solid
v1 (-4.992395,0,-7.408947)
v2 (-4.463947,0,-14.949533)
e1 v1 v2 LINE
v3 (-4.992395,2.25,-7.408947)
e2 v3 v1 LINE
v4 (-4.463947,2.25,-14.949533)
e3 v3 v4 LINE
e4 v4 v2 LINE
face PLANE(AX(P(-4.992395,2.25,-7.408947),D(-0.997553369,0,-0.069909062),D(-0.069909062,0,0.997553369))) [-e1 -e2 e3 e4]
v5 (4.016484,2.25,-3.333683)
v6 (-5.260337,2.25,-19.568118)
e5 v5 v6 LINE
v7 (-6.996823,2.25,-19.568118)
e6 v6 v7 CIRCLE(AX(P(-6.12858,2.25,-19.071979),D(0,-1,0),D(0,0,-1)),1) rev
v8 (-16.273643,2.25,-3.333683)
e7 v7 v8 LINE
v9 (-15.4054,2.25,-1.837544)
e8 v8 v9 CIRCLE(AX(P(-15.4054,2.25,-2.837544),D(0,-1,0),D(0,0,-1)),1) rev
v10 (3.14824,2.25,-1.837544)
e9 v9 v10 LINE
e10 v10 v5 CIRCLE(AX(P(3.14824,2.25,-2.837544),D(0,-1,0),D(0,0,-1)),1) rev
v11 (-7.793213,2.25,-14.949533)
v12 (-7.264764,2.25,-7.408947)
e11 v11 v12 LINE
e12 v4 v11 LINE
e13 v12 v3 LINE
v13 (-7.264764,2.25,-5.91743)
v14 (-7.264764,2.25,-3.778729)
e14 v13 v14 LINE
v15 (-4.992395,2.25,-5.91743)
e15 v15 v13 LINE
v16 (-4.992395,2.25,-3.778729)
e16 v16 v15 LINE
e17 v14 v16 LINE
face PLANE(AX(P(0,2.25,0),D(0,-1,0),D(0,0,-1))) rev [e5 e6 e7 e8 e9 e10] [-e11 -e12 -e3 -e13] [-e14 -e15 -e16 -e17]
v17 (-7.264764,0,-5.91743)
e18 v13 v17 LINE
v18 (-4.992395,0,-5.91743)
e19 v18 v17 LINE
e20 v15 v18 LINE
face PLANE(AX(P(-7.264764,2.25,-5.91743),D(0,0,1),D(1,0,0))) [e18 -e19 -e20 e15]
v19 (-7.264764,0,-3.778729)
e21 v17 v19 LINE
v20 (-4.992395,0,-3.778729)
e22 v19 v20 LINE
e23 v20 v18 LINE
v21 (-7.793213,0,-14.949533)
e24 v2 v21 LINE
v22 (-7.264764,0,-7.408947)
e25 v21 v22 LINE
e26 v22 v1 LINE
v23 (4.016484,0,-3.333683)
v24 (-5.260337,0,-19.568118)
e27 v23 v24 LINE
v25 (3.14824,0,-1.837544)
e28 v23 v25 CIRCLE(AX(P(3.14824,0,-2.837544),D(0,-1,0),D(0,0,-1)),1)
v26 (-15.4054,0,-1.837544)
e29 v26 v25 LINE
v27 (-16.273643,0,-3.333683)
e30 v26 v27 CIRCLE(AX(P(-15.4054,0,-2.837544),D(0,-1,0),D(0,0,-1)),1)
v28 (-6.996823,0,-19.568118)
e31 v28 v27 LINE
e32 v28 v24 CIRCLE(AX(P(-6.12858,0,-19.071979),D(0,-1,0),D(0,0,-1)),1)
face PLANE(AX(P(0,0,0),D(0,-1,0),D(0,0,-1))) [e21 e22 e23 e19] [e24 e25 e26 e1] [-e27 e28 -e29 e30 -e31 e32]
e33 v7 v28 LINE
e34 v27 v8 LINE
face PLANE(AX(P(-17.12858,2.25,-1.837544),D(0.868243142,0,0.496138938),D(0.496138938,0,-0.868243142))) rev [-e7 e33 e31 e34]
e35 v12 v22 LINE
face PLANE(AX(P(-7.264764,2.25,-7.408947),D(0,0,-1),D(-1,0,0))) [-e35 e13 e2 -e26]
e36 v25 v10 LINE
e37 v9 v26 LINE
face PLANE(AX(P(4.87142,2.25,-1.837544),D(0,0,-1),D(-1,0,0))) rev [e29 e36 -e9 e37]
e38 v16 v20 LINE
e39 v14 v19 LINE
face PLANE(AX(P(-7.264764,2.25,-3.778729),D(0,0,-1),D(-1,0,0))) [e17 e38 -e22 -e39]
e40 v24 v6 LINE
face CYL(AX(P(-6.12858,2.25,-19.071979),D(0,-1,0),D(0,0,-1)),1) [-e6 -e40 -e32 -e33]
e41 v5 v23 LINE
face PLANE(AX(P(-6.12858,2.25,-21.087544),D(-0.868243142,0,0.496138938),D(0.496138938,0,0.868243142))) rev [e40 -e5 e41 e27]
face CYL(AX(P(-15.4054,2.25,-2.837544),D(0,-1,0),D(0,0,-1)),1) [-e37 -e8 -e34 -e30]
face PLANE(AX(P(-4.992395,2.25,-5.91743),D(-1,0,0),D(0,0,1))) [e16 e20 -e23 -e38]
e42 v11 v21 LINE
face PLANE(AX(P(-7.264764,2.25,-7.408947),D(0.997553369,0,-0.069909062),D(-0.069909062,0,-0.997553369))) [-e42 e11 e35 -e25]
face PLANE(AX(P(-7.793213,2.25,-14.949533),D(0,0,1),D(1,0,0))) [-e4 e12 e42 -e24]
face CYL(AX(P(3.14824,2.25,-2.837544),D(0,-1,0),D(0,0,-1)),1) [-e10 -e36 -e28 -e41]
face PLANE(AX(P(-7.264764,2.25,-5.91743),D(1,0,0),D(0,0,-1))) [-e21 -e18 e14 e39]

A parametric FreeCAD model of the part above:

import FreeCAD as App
import Part
import Sketcher


def edges_at(feature, points):
    """Names of the edges that pass closest to the given points."""
    edges = feature.Shape.Edges
    near = lambda p: min(range(len(edges)), key=lambda i: edges[i].distToShape(Part.Vertex(*p))[0])
    return sorted({f"Edge{near(p) + 1}" for p in points})

doc = App.newDocument("Part")
body = doc.addObject("PartDesign::Body", "Body")

sketch1 = body.newObject("Sketcher::SketchObject", "Sketch")
sketch1.AttachmentSupport = (doc.getObject("XZ_Plane"), [""])
sketch1.MapMode = "FlatFace"
sketch1.addGeometry([
    Part.LineSegment(App.Vector(-6.1, -21.1, 0), App.Vector(-17.1, -1.8, 0)),
    Part.LineSegment(App.Vector(-17.1, -1.8, 0), App.Vector(4.9, -1.8, 0)),
    Part.LineSegment(App.Vector(4.9, -1.8, 0), App.Vector(-6.1, -21.1, 0)),
    Part.LineSegment(App.Vector(-7.3, -3.8, 0), App.Vector(-7.3, -5.9, 0)),
    Part.LineSegment(App.Vector(-7.3, -5.9, 0), App.Vector(-5, -5.9, 0)),
    Part.LineSegment(App.Vector(-5, -5.9, 0), App.Vector(-5, -3.8, 0)),
    Part.LineSegment(App.Vector(-5, -3.8, 0), App.Vector(-7.3, -3.8, 0)),
    Part.LineSegment(App.Vector(-7.3, -7.4, 0), App.Vector(-7.8, -14.9, 0)),
    Part.LineSegment(App.Vector(-7.8, -14.9, 0), App.Vector(-4.5, -14.9, 0)),
    Part.LineSegment(App.Vector(-4.5, -14.9, 0), App.Vector(-5, -7.4, 0)),
    Part.LineSegment(App.Vector(-5, -7.4, 0), App.Vector(-7.3, -7.4, 0)),
], False)
sketch1.addConstraint([
    Sketcher.Constraint("Coincident", 0, 2, 1, 1),
    Sketcher.Constraint("Coincident", 1, 2, 2, 1),
    Sketcher.Constraint("Coincident", 2, 2, 0, 1),
    Sketcher.Constraint("Coincident", 3, 2, 4, 1),
    Sketcher.Constraint("Coincident", 4, 2, 5, 1),
    Sketcher.Constraint("Coincident", 5, 2, 6, 1),
    Sketcher.Constraint("Coincident", 6, 2, 3, 1),
    Sketcher.Constraint("Coincident", 7, 2, 8, 1),
    Sketcher.Constraint("Coincident", 8, 2, 9, 1),
    Sketcher.Constraint("Coincident", 9, 2, 10, 1),
    Sketcher.Constraint("Coincident", 10, 2, 7, 1),
    Sketcher.Constraint("Horizontal", 1),
    Sketcher.Constraint("Vertical", 3),
    Sketcher.Constraint("Horizontal", 4),
    Sketcher.Constraint("Vertical", 5),
    Sketcher.Constraint("Horizontal", 6),
    Sketcher.Constraint("Horizontal", 8),
    Sketcher.Constraint("Horizontal", 10),
    Sketcher.Constraint("Vertical", 5, 2, 9, 2),
    Sketcher.Constraint("Vertical", 6, 2, 10, 2),
    Sketcher.Constraint("Equal", 0, 2),
    Sketcher.Constraint("Equal", 7, 9),
    Sketcher.Constraint("DistanceX", 1, 1, 1, 2, 22.0),
    Sketcher.Constraint("DistanceY", 2, 2, 0, 2, 19.25),
    Sketcher.Constraint("DistanceY", 3, 2, 3, 1, 2.1387),
    Sketcher.Constraint("DistanceX", 4, 1, 4, 2, 2.272369),
    Sketcher.Constraint("Distance", 7, 7.559081),
    Sketcher.Constraint("DistanceX", 8, 1, 8, 2, 3.329266),
    Sketcher.Constraint("DistanceX", 0, 2, -1, 1, 17.12858),
    Sketcher.Constraint("DistanceY", 3, 2, -1, 1, 5.91743),
    Sketcher.Constraint("DistanceY", 2, 2, 7, 2, 6.13801),
    Sketcher.Constraint("DistanceY", 0, 2, -1, 1, 1.837544),
    Sketcher.Constraint("DistanceX", 3, 2, -1, 1, 7.264764),
])
pad1 = body.newObject("PartDesign::Pad", "Pad")
pad1.Profile = sketch1
pad1.Length = 2.25
pad1.Reversed = True
doc.recompute()

fillet = body.newObject("PartDesign::Fillet", "Fillet")
fillet.Base = (pad1, edges_at(pad1, [(-17.129, 1.125, -1.838), (-6.129, 1.125, -21.088), (4.871, 1.125, -1.838)]))
fillet.Radius = 1

doc.recompute()
